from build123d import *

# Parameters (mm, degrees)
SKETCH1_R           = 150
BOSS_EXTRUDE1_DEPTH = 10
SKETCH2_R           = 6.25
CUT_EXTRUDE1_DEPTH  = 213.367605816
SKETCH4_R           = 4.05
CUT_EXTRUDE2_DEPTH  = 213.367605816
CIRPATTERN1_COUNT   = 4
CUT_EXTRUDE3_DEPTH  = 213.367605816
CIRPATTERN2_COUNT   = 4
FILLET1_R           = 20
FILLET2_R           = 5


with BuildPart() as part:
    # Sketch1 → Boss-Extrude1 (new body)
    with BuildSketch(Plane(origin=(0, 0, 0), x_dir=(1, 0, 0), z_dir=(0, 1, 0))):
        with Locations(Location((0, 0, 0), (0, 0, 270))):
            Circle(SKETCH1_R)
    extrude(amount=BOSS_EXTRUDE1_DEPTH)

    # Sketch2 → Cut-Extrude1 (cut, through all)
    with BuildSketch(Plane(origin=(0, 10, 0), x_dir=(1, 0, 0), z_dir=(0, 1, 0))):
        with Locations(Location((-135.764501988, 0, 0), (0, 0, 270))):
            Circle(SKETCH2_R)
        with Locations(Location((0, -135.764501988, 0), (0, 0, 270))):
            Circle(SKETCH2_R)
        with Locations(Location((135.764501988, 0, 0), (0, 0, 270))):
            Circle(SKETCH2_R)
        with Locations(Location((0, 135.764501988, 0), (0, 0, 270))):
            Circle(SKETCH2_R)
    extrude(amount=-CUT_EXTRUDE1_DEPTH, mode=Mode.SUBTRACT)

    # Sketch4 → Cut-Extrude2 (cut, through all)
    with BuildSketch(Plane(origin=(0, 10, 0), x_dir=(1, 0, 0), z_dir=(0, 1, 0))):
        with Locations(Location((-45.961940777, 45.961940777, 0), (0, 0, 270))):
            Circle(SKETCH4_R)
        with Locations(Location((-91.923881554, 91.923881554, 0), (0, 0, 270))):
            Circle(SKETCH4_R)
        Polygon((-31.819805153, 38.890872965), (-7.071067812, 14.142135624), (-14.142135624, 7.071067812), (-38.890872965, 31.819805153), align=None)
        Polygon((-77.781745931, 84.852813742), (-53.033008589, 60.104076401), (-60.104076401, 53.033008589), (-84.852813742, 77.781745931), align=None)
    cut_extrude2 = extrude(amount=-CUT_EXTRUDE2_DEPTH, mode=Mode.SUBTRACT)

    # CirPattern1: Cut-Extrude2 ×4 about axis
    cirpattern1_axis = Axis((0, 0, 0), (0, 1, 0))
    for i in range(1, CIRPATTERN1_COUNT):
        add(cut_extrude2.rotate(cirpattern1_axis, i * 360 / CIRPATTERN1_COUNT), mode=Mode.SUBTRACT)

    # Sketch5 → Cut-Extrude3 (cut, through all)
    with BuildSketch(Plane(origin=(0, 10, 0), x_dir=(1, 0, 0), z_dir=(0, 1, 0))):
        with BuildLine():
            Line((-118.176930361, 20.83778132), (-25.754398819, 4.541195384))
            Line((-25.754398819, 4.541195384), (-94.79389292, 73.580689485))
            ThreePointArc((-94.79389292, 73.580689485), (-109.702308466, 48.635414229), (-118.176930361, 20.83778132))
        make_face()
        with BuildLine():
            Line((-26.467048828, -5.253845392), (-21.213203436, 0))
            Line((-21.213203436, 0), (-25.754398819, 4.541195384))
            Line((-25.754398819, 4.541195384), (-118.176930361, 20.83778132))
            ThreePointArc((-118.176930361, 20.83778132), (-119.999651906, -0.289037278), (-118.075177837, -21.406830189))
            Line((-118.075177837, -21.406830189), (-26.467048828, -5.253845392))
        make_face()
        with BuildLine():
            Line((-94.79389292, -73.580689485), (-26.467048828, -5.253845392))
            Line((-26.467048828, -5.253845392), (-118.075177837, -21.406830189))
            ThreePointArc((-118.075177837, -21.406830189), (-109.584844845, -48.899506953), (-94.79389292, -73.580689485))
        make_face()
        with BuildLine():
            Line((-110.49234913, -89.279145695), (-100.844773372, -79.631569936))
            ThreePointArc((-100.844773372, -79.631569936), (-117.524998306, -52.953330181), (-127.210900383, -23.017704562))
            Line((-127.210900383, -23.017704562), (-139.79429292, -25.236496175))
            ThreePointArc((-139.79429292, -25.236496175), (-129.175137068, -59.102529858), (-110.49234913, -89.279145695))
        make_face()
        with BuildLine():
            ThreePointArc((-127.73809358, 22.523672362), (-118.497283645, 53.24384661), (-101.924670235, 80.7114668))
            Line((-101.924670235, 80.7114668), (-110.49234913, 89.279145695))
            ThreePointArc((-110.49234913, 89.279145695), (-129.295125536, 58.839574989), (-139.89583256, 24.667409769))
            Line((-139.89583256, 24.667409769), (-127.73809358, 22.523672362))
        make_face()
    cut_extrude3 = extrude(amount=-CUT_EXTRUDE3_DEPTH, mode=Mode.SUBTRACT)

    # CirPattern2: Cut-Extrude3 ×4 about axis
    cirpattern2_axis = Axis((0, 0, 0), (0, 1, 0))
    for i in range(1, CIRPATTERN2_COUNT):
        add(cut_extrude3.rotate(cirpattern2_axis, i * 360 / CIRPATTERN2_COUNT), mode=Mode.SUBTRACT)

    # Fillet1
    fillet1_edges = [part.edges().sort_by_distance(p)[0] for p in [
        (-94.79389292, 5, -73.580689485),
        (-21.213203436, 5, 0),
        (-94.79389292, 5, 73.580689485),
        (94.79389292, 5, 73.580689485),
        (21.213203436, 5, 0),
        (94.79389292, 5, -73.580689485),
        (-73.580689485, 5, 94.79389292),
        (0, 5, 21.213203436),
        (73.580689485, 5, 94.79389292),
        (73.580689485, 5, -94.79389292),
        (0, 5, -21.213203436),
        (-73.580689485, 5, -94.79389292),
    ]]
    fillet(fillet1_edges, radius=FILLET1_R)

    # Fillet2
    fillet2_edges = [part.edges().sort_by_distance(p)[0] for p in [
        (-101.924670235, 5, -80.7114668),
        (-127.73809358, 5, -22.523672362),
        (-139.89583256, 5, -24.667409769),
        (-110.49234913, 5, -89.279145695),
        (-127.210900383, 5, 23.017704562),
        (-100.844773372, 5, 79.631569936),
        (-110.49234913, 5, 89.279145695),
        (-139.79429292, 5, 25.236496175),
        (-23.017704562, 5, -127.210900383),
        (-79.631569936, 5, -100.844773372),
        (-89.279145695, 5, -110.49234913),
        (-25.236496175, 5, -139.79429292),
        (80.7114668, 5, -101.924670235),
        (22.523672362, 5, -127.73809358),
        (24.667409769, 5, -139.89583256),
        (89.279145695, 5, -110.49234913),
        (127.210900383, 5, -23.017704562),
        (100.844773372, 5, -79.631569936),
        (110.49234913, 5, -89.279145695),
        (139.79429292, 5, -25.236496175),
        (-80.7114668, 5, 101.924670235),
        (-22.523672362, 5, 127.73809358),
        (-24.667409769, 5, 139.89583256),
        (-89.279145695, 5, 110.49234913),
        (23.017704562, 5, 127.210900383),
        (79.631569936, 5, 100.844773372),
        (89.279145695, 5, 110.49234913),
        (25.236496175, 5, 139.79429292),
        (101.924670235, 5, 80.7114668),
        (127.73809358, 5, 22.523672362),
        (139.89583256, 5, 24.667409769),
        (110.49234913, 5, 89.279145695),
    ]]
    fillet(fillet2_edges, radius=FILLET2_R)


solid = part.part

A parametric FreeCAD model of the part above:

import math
import FreeCAD as App
import Part
import Sketcher
Q = App.Units.Quantity


def edges_at(feature, points):
    """Names of the edges that pass closest to the given points."""
    edges = feature.Shape.Edges
    near = lambda p: min(range(len(edges)), key=lambda i: edges[i].distToShape(Part.Vertex(*p))[0])
    return sorted({f"Edge{near(p) + 1}" for p in points})


def add_polygon(sketch, points):
    """Adds a closed chain of lines whose ends are joined by coincident constraints."""
    first, n = sketch.GeometryCount, len(points)
    for a, b in zip(points, points[1:] + points[:1]):
        sketch.addGeometry(Part.LineSegment(App.Vector(*a, 0), App.Vector(*b, 0)), False)
    for i in range(n):
        sketch.addConstraint(Sketcher.Constraint("Coincident", first + i, 2, first + (i + 1) % n, 1))

doc = App.newDocument("Part")
params = doc.addObject("Spreadsheet::Sheet", "Params")
for row, (alias, value) in enumerate([
    ("sketch1_diameter", "300 mm"),
    ("pad1_length", "10 mm"),
    ("sketch2_diameter", "12.5 mm"),
    ("sketch3_diameter", "8.1 mm"),
    ("sketch3_length", "35 mm"),
    ("sketch3_length2", "10 mm"),
    ("sketch4_radius", "120 mm"),
    ("fillet_radius", "20 mm"),
    ("fillet2_radius", "5 mm"),
], start=1):
    params.set(f"A{row}", alias)
    params.set(f"B{row}", "=" + value)
    params.setAlias(f"B{row}", alias)

body = doc.addObject("PartDesign::Body", "Body")

sketch1 = body.newObject("Sketcher::SketchObject", "Sketch")
sketch1.AttachmentSupport = (doc.getObject("XZ_Plane"), [""])
sketch1.MapMode = "FlatFace"
sketch1.addGeometry(Part.Circle(App.Vector(0, 0, 0), App.Vector(0, 0, 1), 150), False)
sketch1.addConstraint(Sketcher.Constraint("Coincident", 0, 3, -1, 1))
sketch1.addConstraint(Sketcher.Constraint("Diameter", 0, Q("300 mm")))
sketch1.setExpression("Constraints[1]", "Params.sketch1_diameter")
pad1 = body.newObject("PartDesign::Pad", "Pad")
pad1.Profile = sketch1
pad1.setExpression("Length", "Params.pad1_length")
pad1.Reversed = True

sketch2 = body.newObject("Sketcher::SketchObject", "Sketch001")
sketch2.AttachmentSupport = (doc.getObject("XZ_Plane"), [""])
sketch2.MapMode = "FlatFace"
sketch2.AttachmentOffset = App.Placement(App.Vector(0, 0, -10), App.Rotation())
sketch2.addGeometry(Part.Circle(App.Vector(-135.764502, 0, 0), App.Vector(0, 0, 1), 6.25), False)
sketch2.addGeometry(Part.Circle(App.Vector(0, 135.764502, 0), App.Vector(0, 0, 1), 6.25), False)
sketch2.addGeometry(Part.Circle(App.Vector(135.764502, 0, 0), App.Vector(0, 0, 1), 6.25), False)
sketch2.addGeometry(Part.Circle(App.Vector(0, -135.764502, 0), App.Vector(0, 0, 1), 6.25), False)
sketch2.addConstraint(Sketcher.Constraint("Equal", 0, 1))
sketch2.addConstraint(Sketcher.Constraint("Equal", 1, 2))
sketch2.addConstraint(Sketcher.Constraint("Equal", 2, 3))
sketch2.addConstraint(Sketcher.Constraint("Symmetric", 0, 3, 2, 3, -1, 1))
sketch2.addConstraint(Sketcher.Constraint("Symmetric", 1, 3, 3, 3, -1, 1))
sketch2.addConstraint(Sketcher.Constraint("PointOnObject", 0, 3, -1))
sketch2.addConstraint(Sketcher.Constraint("PointOnObject", 1, 3, -2))
sketch2.addConstraint(Sketcher.Constraint("Diameter", 0, Q("12.5 mm")))
sketch2.addConstraint(Sketcher.Constraint("DistanceX", 0, 3, -1, 1, Q("135.764502 mm")))
sketch2.addConstraint(Sketcher.Constraint("DistanceY", -1, 1, 1, 3, Q("135.764502 mm")))
sketch2.setExpression("Constraints[7]", "Params.sketch2_diameter")
pocket1 = body.newObject("PartDesign::Pocket", "Pocket")
pocket1.Profile = sketch2
pocket1.Type = "ThroughAll"
pocket1.Reversed = True

sketch3 = body.newObject("Sketcher::SketchObject", "Sketch002")
sketch3.AttachmentSupport = (doc.getObject("XZ_Plane"), [""])
sketch3.MapMode = "FlatFace"
sketch3.AttachmentOffset = App.Placement(App.Vector(0, 0, -10), App.Rotation())
sketch3.addGeometry(Part.Circle(App.Vector(-45.961941, -45.961941, 0), App.Vector(0, 0, 1), 4.05), False)
sketch3.addGeometry(Part.Circle(App.Vector(-91.923882, -91.923882, 0), App.Vector(0, 0, 1), 4.05), False)
add_polygon(sketch3, [(-7.071068, -14.142136), (-31.819805, -38.890873), (-38.890873, -31.819805), (-14.142136, -7.071068)])
add_polygon(sketch3, [(-53.033009, -60.104076), (-77.781746, -84.852814), (-84.852814, -77.781746), (-60.104076, -53.033009)])
sketch3.addConstraint(Sketcher.Constraint("Equal", 0, 1))
sketch3.addConstraint(Sketcher.Constraint("Perpendicular", 2, 3))
sketch3.addConstraint(Sketcher.Constraint("Perpendicular", 3, 4))
sketch3.addConstraint(Sketcher.Constraint("Perpendicular", 4, 5))
sketch3.addConstraint(Sketcher.Constraint("Perpendicular", 5, 6))
sketch3.addConstraint(Sketcher.Constraint("Perpendicular", 6, 7))
sketch3.addConstraint(Sketcher.Constraint("Perpendicular", 7, 8))
sketch3.addConstraint(Sketcher.Constraint("Perpendicular", 8, 9))
sketch3.addConstraint(Sketcher.Constraint("Equal", 4, 6))
sketch3.addConstraint(Sketcher.Constraint("Equal", 5, 7))
sketch3.addConstraint(Sketcher.Constraint("Diameter", 0, Q("8.1 mm")))
sketch3.addConstraint(Sketcher.Constraint("Angle", 2, Q("-135 deg")))
sketch3.addConstraint(Sketcher.Constraint("Distance", 2, Q("35 mm")))
sketch3.addConstraint(Sketcher.Constraint("Distance", 3, Q("10 mm")))
sketch3.addConstraint(Sketcher.Constraint("DistanceX", 0, 3, -1, 1, Q("45.961941 mm")))
sketch3.addConstraint(Sketcher.Constraint("DistanceY", 0, 3, -1, 1, Q("45.961941 mm")))
sketch3.addConstraint(Sketcher.Constraint("DistanceX", 1, 3, -1, 1, Q("91.923882 mm")))
sketch3.addConstraint(Sketcher.Constraint("DistanceY", 1, 3, -1, 1, Q("91.923882 mm")))
sketch3.addConstraint(Sketcher.Constraint("DistanceY", 8, 2, -1, 1, Q("53.033009 mm")))
sketch3.addConstraint(Sketcher.Constraint("DistanceX", 9, 2, -1, 1, Q("53.033009 mm")))
sketch3.addConstraint(Sketcher.Constraint("DistanceY", 1, 3, 2, 2, Q("53.033009 mm")))
sketch3.addConstraint(Sketcher.Constraint("DistanceX", 1, 3, 3, 2, Q("53.033009 mm")))
sketch3.setExpression("Constraints[18]", "Params.sketch3_diameter")
sketch3.setExpression("Constraints[20]", "Params.sketch3_length")
sketch3.setExpression("Constraints[21]", "Params.sketch3_length2")
pocket2 = body.newObject("PartDesign::Pocket", "Pocket001")
pocket2.Profile = sketch3
pocket2.Type = "ThroughAll"
pocket2.Reversed = True
doc.recompute()

polarpattern = body.newObject("PartDesign::PolarPattern", "PolarPattern")
polarpattern.Originals = [pocket2]
polarpattern.Axis = (doc.getObject("Y_Axis"), [""])
polarpattern.Angle = 360
polarpattern.Occurrences = 4
body.Tip = polarpattern

sketch4 = body.newObject("Sketcher::SketchObject", "Sketch003")
sketch4.AttachmentSupport = (doc.getObject("XZ_Plane"), [""])
sketch4.MapMode = "FlatFace"
sketch4.AttachmentOffset = App.Placement(App.Vector(0, 0, -10), App.Rotation())
sketch4.addGeometry(Part.LineSegment(App.Vector(-25.754399, -4.541195, 0), App.Vector(-94.793893, -73.580689, 0)), False)
sketch4.addGeometry(Part.ArcOfCircle(Part.Circle(App.Vector(0, 0, 0), App.Vector(0, 0, 1), 120), math.radians(-170), math.radians(-142.180756)), False)
sketch4.addGeometry(Part.ArcOfCircle(Part.Circle(App.Vector(0, 0, 0), App.Vector(0, 0, 1), 120), math.radians(169.723989), math.radians(190)), False)
sketch4.addGeometry(Part.ArcOfCircle(Part.Circle(App.Vector(0, 0, 0), App.Vector(0, 0, 1), 120), math.radians(142.180756), math.radians(169.723989)), False)
sketch4.addGeometry(Part.LineSegment(App.Vector(-94.793893, 73.580689, 0), App.Vector(-26.467049, 5.253845, 0)), False)
sketch4.addGeometry(Part.LineSegment(App.Vector(-26.467049, 5.253845, 0), App.Vector(-21.213203, 0, 0)), False)
sketch4.addGeometry(Part.LineSegment(App.Vector(-21.213203, 0, 0), App.Vector(-25.754399, -4.541195, 0)), False)
sketch4.addGeometry(Part.LineSegment(App.Vector(-110.492349, 89.279146, 0), App.Vector(-100.844773, 79.63157, 0)), False)
sketch4.addGeometry(Part.ArcOfCircle(Part.Circle(App.Vector(-1.214586, -1.214586, 0), App.Vector(0, 0, 1), 128.305398), math.radians(140.941968), math.radians(169.113495)), False)
sketch4.addGeometry(Part.LineSegment(App.Vector(-127.2109, 23.017705, 0), App.Vector(-139.794293, 25.236496, 0)), False)
sketch4.addGeometry(Part.ArcOfCircle(Part.Circle(App.Vector(0, 0, 0), App.Vector(0, 0, 1), 142.053951), math.radians(141.061372), math.radians(169.766841)), False)
sketch4.addGeometry(Part.ArcOfCircle(Part.Circle(App.Vector(-1.214586, -1.214586, 0), App.Vector(0, 0, 1), 128.305398), math.radians(-170.439963), math.radians(-141.71372)), False)
sketch4.addGeometry(Part.LineSegment(App.Vector(-101.92467, -80.711467, 0), App.Vector(-110.492349, -89.279146, 0)), False)
sketch4.addGeometry(Part.ArcOfCircle(Part.Circle(App.Vector(0, 0, 0), App.Vector(0, 0, 1), 142.053951), math.radians(-170), math.radians(-141.061372)), False)
sketch4.addGeometry(Part.LineSegment(App.Vector(-139.895833, -24.66741, 0), App.Vector(-127.738094, -22.523672, 0)), False)
sketch4.addConstraint(Sketcher.Constraint("Coincident", 0, 2, 1, 2))
sketch4.addConstraint(Sketcher.Constraint("Tangent", 1, 1, 2, 2))
sketch4.addConstraint(Sketcher.Constraint("Tangent", 2, 1, 3, 2))
sketch4.addConstraint(Sketcher.Constraint("Coincident", 3, 1, 4, 1))
sketch4.addConstraint(Sketcher.Constraint("Coincident", 4, 2, 5, 1))
sketch4.addConstraint(Sketcher.Constraint("Coincident", 5, 2, 6, 1))
sketch4.addConstraint(Sketcher.Constraint("Coincident", 6, 2, 0, 1))
sketch4.addConstraint(Sketcher.Constraint("Coincident", 7, 2, 8, 1))
sketch4.addConstraint(Sketcher.Constraint("Coincident", 8, 2, 9, 1))
sketch4.addConstraint(Sketcher.Constraint("Coincident", 9, 2, 10, 2))
sketch4.addConstraint(Sketcher.Constraint("Coincident", 10, 1, 7, 1))
sketch4.addConstraint(Sketcher.Constraint("Coincident", 11, 2, 12, 1))
sketch4.addConstraint(Sketcher.Constraint("Coincident", 12, 2, 13, 2))
sketch4.addConstraint(Sketcher.Constraint("Coincident", 13, 1, 14, 1))
sketch4.addConstraint(Sketcher.Constraint("Coincident", 14, 2, 11, 1))
sketch4.addConstraint(Sketcher.Constraint("Coincident", 1, 3, -1, 1))
sketch4.addConstraint(Sketcher.Constraint("Coincident", 3, 3, -1, 1))
sketch4.addConstraint(Sketcher.Constraint("Coincident", 10, 3, -1, 1))
sketch4.addConstraint(Sketcher.Constraint("Coincident", 13, 3, -1, 1))
sketch4.addConstraint(Sketcher.Constraint("Coincident", 11, 3, 8, 3))
sketch4.addConstraint(Sketcher.Constraint("Equal", 8, 11))
sketch4.addConstraint(Sketcher.Constraint("Equal", 10, 13))
sketch4.addConstraint(Sketcher.Constraint("PointOnObject", 5, 2, -1))
sketch4.addConstraint(Sketcher.Constraint("Perpendicular", 0, 4))
sketch4.addConstraint(Sketcher.Constraint("Parallel", 4, 5))
sketch4.addConstraint(Sketcher.Constraint("Perpendicular", 5, 6))
sketch4.addConstraint(Sketcher.Constraint("Perpendicular", 6, 7))
sketch4.addConstraint(Sketcher.Constraint("Perpendicular", 7, 12))
sketch4.addConstraint(Sketcher.Constraint("Vertical", 0, 2, 3, 1))
sketch4.addConstraint(Sketcher.Constraint("Vertical", 10, 1, 12, 2))
sketch4.addConstraint(Sketcher.Constraint("Radius", 1, Q("120 mm")))
sketch4.addConstraint(Sketcher.Constraint("Angle", 9, Q("170 deg")))
sketch4.addConstraint(Sketcher.Constraint("Angle", 14, Q("10 deg")))
sketch4.addConstraint(Sketcher.Constraint("Radius", 8, Q("128.305398 mm")))
sketch4.addConstraint(Sketcher.Constraint("Radius", 10, Q("142.053951 mm")))
sketch4.addConstraint(Sketcher.Constraint("DistanceX", 6, 2, -1, 1, Q("25.754399 mm")))
sketch4.addConstraint(Sketcher.Constraint("DistanceX", 8, 2, -1, 1, Q("127.2109 mm")))
sketch4.addConstraint(Sketcher.Constraint("DistanceX", 9, 2, 3, 1, Q("45.0004 mm")))
sketch4.addConstraint(Sketcher.Constraint("DistanceX", 9, 2, 14, 2, Q("12.056199 mm")))
sketch4.addConstraint(Sketcher.Constraint("Distance", 0, Q("97.636589 mm")))
sketch4.addConstraint(Sketcher.Constraint("Distance", 4, Q("96.62875 mm")))
sketch4.addConstraint(Sketcher.Constraint("Distance", 14, Q("12.345292 mm")))
sketch4.addConstraint(Sketcher.Constraint("DistanceX", 1, 1, -1, 1, Q("118.17693 mm")))
sketch4.addConstraint(Sketcher.Constraint("DistanceY", -1, 1, 2, 1, Q("21.40683 mm")))
sketch4.addConstraint(Sketcher.Constraint("DistanceY", -1, 1, 7, 2, Q("79.63157 mm")))
sketch4.setExpression("Constraints[30]", "Params.sketch4_radius")
pocket3 = body.newObject("PartDesign::Pocket", "Pocket002")
pocket3.Profile = sketch4
pocket3.Type = "ThroughAll"
pocket3.Reversed = True
doc.recompute()

polarpattern2 = body.newObject("PartDesign::PolarPattern", "PolarPattern001")
polarpattern2.Originals = [pocket3]
polarpattern2.Axis = (doc.getObject("Y_Axis"), [""])
polarpattern2.Angle = 360
polarpattern2.Occurrences = 4
body.Tip = polarpattern2
doc.recompute()

fillet = body.newObject("PartDesign::Fillet", "Fillet")
fillet.Base = (polarpattern2, edges_at(polarpattern2, [
    (-94.794, 5, -73.581),
    (-21.213, 5, 0),
    (-94.794, 5, 73.581),
    (94.794, 5, 73.581),
    (21.213, 5, 0),
    (94.794, 5, -73.581),
    (-73.581, 5, 94.794),
    (0, 5, 21.213),
    (73.581, 5, 94.794),
    (73.581, 5, -94.794),
    (0, 5, -21.213),
    (-73.581, 5, -94.794),
]))
fillet.setExpression("Radius", "Params.fillet_radius")
doc.recompute()

fillet2 = body.newObject("PartDesign::Fillet", "Fillet001")
fillet2.Base = (fillet, edges_at(fillet, [
    (-101.925, 5, -80.711),
    (-127.738, 5, -22.524),
    (-139.896, 5, -24.667),
    (-110.492, 5, -89.279),
    (-127.211, 5, 23.018),
    (-100.845, 5, 79.632),
    (-110.492, 5, 89.279),
    (-139.794, 5, 25.236),
    (-23.018, 5, -127.211),
    (-79.632, 5, -100.845),
    (-89.279, 5, -110.492),
    (-25.236, 5, -139.794),
    (80.711, 5, -101.925),
    (22.524, 5, -127.738),
    (24.667, 5, -139.896),
    (89.279, 5, -110.492),
    (127.211, 5, -23.018),
    (100.845, 5, -79.632),
    (110.492, 5, -89.279),
    (139.794, 5, -25.236),
    (-80.711, 5, 101.925),
    (-22.524, 5, 127.738),
    (-24.667, 5, 139.896),
    (-89.279, 5, 110.492),
    (23.018, 5, 127.211),
    (79.632, 5, 100.845),
    (89.279, 5, 110.492),
    (25.236, 5, 139.794),
    (101.925, 5, 80.711),
    (127.738, 5, 22.524),
    (139.896, 5, 24.667),
    (110.492, 5, 89.279),
]))
fillet2.setExpression("Radius", "Params.fillet2_radius")

doc.recompute()
